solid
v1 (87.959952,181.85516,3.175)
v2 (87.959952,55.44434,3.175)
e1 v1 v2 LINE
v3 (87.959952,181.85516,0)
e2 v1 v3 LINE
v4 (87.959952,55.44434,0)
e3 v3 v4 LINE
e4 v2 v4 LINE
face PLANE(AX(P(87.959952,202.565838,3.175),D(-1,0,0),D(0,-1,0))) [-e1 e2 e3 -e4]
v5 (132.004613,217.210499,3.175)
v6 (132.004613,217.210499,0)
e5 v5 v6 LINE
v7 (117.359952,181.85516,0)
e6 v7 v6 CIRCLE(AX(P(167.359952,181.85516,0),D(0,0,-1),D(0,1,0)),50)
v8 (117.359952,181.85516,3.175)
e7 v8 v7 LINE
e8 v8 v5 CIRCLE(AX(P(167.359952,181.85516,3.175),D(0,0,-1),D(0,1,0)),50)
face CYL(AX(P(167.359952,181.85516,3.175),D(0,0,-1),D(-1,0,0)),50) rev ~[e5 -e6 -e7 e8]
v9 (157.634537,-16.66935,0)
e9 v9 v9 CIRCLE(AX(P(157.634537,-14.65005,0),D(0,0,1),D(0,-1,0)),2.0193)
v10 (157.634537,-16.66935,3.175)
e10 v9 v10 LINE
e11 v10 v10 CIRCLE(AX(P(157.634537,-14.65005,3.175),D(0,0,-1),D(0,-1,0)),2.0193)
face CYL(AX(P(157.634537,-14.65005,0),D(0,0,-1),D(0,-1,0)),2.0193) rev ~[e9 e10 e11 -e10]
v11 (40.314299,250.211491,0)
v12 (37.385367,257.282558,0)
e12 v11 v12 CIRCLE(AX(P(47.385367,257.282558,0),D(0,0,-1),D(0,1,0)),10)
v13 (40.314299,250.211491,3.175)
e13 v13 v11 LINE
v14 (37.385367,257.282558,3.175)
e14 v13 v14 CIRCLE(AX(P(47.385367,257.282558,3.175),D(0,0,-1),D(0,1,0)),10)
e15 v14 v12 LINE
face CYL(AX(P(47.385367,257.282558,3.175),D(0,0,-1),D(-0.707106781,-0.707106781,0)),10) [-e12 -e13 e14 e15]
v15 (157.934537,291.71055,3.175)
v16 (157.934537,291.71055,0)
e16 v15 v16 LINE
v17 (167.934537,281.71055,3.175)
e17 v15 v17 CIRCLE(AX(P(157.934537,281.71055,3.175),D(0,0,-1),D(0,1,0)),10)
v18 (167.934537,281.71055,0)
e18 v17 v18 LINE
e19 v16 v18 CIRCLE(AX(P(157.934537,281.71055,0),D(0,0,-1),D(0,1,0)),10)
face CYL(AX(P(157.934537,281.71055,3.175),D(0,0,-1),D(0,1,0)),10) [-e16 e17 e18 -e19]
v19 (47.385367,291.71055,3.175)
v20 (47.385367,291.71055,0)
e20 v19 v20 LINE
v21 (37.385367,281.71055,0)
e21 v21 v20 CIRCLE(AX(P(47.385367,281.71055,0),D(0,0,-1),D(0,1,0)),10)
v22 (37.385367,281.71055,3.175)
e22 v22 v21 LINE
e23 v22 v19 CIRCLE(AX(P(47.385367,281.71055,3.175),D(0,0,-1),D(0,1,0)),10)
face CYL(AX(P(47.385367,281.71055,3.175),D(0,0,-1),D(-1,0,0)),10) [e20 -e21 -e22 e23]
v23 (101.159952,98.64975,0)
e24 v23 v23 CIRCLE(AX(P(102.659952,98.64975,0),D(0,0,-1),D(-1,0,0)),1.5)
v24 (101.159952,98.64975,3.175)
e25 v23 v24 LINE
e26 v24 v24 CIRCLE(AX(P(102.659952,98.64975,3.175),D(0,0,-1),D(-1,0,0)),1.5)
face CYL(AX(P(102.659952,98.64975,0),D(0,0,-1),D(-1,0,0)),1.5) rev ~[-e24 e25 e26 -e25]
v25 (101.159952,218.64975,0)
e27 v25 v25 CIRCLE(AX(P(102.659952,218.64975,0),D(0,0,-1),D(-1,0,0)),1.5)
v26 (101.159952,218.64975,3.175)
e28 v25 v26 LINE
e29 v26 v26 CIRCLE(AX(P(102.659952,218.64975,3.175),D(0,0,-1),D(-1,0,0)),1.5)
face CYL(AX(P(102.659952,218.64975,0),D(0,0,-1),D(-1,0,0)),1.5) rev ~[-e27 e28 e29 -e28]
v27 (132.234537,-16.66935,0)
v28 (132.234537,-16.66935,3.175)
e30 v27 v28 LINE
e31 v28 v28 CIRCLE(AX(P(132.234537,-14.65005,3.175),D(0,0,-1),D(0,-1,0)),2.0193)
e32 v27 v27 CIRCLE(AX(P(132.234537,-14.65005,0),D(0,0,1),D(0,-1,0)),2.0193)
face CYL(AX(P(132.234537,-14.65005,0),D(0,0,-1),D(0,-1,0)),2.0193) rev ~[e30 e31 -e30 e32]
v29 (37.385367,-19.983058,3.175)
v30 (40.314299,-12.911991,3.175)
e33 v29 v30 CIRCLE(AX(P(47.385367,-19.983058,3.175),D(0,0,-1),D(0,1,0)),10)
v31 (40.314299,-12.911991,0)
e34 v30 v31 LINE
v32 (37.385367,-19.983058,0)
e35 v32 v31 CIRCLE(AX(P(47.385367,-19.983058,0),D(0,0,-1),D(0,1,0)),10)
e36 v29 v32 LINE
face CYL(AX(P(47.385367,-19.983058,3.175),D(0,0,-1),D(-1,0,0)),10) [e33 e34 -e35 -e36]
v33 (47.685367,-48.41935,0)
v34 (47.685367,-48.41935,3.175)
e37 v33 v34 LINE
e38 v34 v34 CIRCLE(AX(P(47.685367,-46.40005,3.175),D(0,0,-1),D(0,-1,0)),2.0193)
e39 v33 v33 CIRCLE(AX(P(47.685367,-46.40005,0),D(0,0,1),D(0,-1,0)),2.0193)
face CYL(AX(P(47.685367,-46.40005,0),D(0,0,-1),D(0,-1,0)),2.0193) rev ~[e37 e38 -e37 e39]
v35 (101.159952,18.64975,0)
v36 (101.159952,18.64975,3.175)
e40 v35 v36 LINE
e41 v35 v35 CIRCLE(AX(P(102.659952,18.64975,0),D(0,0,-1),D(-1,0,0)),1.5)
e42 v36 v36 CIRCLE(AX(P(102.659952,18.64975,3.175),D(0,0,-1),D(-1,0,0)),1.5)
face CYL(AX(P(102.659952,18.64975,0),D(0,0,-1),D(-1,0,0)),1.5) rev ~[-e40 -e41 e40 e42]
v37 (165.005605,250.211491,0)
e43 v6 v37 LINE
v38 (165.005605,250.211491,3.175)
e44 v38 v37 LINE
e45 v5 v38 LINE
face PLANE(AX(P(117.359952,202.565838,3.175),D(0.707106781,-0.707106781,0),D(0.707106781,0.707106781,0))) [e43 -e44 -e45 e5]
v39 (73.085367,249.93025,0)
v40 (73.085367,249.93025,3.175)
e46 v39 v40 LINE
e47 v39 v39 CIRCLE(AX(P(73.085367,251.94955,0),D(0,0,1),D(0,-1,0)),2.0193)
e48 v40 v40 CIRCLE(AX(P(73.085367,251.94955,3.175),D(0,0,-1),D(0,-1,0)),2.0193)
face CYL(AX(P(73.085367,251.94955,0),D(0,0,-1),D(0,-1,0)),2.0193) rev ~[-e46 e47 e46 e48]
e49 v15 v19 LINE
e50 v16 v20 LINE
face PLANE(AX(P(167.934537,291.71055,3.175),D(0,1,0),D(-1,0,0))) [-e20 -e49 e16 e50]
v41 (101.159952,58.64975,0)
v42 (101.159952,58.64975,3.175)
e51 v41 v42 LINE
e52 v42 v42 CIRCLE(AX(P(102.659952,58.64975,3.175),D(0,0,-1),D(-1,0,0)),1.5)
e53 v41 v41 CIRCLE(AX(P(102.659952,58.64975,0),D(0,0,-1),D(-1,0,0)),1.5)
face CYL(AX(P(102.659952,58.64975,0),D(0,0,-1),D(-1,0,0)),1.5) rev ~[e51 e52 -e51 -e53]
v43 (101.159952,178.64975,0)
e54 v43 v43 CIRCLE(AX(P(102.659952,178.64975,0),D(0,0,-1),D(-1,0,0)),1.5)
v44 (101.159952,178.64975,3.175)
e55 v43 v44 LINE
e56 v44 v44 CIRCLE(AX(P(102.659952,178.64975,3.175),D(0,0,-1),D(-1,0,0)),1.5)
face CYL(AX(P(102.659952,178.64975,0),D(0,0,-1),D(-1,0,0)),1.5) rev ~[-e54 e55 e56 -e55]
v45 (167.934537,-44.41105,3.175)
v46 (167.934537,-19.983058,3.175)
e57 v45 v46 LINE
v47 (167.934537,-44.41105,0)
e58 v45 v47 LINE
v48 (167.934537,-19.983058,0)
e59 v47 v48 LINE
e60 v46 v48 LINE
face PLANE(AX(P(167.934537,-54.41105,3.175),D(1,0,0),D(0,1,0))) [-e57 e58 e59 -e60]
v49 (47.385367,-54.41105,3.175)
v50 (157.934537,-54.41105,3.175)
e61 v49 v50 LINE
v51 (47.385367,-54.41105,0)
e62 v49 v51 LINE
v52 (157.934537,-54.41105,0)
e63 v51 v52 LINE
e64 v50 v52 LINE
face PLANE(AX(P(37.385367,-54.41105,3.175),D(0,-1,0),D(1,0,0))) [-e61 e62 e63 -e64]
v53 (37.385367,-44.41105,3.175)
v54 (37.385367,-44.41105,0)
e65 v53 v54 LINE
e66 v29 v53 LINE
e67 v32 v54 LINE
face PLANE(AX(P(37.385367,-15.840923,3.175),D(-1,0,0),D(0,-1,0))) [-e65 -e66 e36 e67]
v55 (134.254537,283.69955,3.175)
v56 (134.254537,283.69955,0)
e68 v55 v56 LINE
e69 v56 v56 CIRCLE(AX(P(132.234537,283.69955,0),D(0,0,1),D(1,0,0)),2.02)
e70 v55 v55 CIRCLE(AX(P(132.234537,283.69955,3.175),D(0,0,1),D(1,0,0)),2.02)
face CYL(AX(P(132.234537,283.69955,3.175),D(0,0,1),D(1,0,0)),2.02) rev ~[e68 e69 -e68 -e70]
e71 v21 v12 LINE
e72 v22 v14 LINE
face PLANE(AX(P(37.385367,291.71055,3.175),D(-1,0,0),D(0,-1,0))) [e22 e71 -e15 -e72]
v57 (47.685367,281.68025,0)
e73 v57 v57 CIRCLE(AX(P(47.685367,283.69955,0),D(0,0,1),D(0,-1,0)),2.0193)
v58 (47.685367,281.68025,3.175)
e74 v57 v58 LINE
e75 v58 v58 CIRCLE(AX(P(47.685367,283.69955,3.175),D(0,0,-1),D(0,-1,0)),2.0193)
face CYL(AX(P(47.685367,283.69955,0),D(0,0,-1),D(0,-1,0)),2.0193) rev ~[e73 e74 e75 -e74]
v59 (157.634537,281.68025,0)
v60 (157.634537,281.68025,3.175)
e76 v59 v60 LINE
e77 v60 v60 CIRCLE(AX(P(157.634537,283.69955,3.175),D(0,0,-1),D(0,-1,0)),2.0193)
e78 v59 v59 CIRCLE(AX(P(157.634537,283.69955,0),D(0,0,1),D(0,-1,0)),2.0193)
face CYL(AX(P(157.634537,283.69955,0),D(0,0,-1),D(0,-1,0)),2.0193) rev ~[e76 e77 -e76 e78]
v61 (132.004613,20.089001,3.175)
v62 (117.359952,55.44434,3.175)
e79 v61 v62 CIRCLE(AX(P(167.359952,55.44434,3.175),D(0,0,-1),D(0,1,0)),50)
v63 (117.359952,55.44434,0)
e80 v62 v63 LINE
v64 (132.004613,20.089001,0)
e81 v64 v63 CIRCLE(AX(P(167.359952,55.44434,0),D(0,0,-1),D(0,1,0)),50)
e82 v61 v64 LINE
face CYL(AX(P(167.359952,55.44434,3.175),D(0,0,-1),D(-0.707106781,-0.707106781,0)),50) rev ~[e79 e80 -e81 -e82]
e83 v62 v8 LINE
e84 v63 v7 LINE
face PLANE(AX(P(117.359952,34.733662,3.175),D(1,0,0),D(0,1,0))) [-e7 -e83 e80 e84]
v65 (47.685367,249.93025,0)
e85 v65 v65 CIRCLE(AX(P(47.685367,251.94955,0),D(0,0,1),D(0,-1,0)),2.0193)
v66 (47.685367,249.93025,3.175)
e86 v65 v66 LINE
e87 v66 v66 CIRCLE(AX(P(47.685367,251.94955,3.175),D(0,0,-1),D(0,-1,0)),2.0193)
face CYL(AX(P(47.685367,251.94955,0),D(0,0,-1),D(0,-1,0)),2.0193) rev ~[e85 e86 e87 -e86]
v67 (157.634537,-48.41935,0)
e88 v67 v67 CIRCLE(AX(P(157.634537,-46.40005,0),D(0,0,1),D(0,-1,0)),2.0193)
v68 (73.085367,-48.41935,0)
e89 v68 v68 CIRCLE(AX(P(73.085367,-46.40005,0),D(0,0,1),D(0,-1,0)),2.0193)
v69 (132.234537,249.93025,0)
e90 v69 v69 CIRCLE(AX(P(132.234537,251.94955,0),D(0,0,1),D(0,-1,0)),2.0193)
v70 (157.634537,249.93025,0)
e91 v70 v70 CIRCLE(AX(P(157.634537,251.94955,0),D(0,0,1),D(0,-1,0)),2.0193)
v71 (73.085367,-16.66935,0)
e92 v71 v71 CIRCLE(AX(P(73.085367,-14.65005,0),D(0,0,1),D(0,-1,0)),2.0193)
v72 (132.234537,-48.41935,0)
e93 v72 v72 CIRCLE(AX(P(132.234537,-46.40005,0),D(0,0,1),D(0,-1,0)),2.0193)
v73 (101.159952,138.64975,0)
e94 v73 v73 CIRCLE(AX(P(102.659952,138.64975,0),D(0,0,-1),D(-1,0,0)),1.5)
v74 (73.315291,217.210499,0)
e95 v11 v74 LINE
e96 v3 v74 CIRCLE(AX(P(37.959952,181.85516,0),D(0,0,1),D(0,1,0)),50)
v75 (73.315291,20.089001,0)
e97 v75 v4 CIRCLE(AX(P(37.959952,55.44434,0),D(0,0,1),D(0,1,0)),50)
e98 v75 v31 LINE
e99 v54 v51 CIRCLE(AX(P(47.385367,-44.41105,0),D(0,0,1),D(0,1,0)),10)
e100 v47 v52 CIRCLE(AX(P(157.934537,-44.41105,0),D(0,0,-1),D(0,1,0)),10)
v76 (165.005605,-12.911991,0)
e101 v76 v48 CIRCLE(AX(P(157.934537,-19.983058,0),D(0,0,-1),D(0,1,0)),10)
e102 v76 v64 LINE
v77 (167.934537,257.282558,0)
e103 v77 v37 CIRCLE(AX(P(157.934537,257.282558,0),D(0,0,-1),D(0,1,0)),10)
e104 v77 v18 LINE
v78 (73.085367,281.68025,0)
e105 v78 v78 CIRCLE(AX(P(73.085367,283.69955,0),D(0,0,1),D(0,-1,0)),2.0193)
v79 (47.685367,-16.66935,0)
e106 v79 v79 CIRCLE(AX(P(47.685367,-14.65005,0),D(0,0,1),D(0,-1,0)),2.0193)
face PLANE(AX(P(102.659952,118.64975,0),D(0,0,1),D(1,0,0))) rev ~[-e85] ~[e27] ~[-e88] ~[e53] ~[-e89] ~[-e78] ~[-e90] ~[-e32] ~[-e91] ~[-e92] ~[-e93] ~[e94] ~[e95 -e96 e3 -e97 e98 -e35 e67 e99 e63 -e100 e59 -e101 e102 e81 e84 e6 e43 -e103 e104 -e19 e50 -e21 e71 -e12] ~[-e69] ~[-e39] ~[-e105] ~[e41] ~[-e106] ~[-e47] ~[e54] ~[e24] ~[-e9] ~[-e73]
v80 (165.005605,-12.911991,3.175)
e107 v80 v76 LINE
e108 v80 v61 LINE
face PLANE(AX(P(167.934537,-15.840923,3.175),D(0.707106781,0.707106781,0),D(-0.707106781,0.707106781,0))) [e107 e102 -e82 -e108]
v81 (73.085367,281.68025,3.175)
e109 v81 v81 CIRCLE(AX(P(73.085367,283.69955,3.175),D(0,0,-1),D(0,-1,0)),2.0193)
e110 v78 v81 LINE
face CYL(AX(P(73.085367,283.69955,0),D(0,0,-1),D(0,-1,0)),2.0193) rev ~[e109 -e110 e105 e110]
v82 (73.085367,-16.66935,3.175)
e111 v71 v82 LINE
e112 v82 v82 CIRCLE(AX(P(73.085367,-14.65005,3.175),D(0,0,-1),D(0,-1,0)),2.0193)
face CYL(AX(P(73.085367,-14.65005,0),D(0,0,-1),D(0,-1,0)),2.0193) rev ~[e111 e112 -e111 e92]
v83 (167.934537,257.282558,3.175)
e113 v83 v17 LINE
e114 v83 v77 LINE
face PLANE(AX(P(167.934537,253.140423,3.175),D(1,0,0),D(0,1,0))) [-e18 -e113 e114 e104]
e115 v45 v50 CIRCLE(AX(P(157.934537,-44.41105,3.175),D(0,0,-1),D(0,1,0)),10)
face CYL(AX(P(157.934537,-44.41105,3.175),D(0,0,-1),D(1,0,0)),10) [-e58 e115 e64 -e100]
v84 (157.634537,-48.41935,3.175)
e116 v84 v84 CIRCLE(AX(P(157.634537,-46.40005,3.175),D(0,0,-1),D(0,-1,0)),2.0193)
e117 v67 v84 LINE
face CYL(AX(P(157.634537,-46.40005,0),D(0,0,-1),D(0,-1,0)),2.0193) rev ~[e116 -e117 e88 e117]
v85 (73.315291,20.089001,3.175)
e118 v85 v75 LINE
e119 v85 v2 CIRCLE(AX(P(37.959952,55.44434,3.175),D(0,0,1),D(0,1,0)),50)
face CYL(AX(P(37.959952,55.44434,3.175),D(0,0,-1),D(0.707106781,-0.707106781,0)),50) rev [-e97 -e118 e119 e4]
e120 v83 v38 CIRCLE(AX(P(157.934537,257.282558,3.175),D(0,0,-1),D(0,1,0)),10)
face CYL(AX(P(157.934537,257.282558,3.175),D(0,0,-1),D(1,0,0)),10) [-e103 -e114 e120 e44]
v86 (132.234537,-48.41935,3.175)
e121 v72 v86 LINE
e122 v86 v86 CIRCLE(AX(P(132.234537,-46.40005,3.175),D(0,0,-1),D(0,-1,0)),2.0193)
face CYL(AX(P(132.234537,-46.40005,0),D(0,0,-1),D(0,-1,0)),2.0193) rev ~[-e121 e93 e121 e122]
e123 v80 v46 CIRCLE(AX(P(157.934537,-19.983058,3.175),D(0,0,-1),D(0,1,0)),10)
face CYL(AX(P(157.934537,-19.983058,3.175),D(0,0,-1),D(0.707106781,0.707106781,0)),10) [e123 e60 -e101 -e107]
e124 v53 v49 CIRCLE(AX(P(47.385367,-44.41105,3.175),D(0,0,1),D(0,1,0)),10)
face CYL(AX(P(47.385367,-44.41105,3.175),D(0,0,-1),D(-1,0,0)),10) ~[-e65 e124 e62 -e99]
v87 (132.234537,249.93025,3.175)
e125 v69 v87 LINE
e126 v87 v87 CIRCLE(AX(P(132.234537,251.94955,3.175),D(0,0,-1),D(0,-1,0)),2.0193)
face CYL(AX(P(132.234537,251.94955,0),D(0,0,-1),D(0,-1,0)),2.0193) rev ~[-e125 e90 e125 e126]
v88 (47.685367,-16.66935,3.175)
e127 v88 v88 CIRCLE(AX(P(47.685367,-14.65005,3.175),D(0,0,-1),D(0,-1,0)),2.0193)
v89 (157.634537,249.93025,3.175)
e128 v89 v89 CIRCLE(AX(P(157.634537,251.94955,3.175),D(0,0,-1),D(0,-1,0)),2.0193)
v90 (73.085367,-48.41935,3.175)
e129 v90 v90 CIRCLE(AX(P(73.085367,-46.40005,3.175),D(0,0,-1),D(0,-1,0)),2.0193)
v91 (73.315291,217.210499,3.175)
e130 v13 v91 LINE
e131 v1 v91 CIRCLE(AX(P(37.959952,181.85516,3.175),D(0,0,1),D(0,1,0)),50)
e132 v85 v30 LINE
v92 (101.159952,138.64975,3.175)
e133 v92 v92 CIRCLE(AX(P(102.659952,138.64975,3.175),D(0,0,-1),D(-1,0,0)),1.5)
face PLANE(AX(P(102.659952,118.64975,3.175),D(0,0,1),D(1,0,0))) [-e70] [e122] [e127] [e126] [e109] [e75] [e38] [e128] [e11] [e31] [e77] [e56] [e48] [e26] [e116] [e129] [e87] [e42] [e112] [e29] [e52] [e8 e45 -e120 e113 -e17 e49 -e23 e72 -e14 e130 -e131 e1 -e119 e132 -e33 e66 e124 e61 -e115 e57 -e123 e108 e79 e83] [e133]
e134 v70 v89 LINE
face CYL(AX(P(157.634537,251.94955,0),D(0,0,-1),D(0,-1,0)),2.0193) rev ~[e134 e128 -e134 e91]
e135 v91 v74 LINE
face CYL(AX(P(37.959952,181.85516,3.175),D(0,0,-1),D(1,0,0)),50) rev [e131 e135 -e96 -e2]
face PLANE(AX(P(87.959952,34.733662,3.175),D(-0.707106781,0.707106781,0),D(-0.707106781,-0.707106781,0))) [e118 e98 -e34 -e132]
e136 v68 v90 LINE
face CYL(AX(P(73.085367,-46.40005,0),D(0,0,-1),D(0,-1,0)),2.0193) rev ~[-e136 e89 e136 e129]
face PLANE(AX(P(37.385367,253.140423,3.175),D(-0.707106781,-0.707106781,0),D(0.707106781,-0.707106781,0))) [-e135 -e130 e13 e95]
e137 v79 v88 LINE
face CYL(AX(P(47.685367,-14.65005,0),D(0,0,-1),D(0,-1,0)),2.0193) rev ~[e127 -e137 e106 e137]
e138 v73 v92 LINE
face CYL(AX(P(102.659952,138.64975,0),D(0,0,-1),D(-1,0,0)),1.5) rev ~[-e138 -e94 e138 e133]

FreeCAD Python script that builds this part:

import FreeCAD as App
import Part
import Sketcher
from FreeCAD import Vector


def edges_at(feature, points):
    """Names of the edges that pass closest to the given points."""
    edges = feature.Shape.Edges
    near = lambda p: min(range(len(edges)), key=lambda i: edges[i].distToShape(Part.Vertex(*p))[0])
    return sorted({f"Edge{near(p) + 1}" for p in points})


def add_polygon(sketch, points):
    """Adds a closed chain of lines whose ends are joined by coincident constraints."""
    first, n = sketch.GeometryCount, len(points)
    for a, b in zip(points, points[1:] + points[:1]):
        sketch.addGeometry(Part.LineSegment(App.Vector(*a, 0), App.Vector(*b, 0)), False)
    for i in range(n):
        sketch.addConstraint(Sketcher.Constraint("Coincident", first + i, 2, first + (i + 1) % n, 1))

doc = App.newDocument("Part")
body = doc.addObject("PartDesign::Body", "Body")

sketch1 = body.newObject("Sketcher::SketchObject", "Sketch")
sketch1.AttachmentSupport = (doc.getObject("XY_Plane"), [""])
sketch1.MapMode = "FlatFace"
add_polygon(sketch1, [(165.9, -16.7), (157.3, -8.1), (115.4, 33.9), (115.4, 203.4), (157.3, 245.3), (165.9, 254), (165.9, 294), (39.4, 289.7), (39.4, 254), (90, 203.4), (90, 33.9), (39.4, -16.7), (39.4, -52.4), (165.9, -56.7)])
sketch1.addGeometry(Part.Circle(Vector(47.7, -46.4, 0), Vector(0, 0, 1), 2), False)
sketch1.addGeometry(Part.Circle(Vector(47.7, -14.7, 0), Vector(0, 0, 1), 2), False)
sketch1.addGeometry(Part.Circle(Vector(73.1, -46.4, 0), Vector(0, 0, 1), 2), False)
sketch1.addGeometry(Part.Circle(Vector(73.1, -14.7, 0), Vector(0, 0, 1), 2), False)
sketch1.addGeometry(Part.Circle(Vector(132.2, -46.4, 0), Vector(0, 0, 1), 2), False)
sketch1.addGeometry(Part.Circle(Vector(132.2, -14.7, 0), Vector(0, 0, 1), 2), False)
sketch1.addGeometry(Part.Circle(Vector(157.6, -46.4, 0), Vector(0, 0, 1), 2), False)
sketch1.addGeometry(Part.Circle(Vector(157.6, -14.7, 0), Vector(0, 0, 1), 2), False)
sketch1.addGeometry(Part.Circle(Vector(47.7, 251.9, 0), Vector(0, 0, 1), 2), False)
sketch1.addGeometry(Part.Circle(Vector(47.7, 283.7, 0), Vector(0, 0, 1), 2), False)
sketch1.addGeometry(Part.Circle(Vector(73.1, 251.9, 0), Vector(0, 0, 1), 2), False)
sketch1.addGeometry(Part.Circle(Vector(73.1, 283.7, 0), Vector(0, 0, 1), 2), False)
sketch1.addGeometry(Part.Circle(Vector(132.2, 251.9, 0), Vector(0, 0, 1), 2), False)
sketch1.addGeometry(Part.Circle(Vector(157.6, 251.9, 0), Vector(0, 0, 1), 2), False)
sketch1.addGeometry(Part.Circle(Vector(157.6, 283.7, 0), Vector(0, 0, 1), 2), False)
sketch1.addConstraint(Sketcher.Constraint("Vertical", 2))
sketch1.addConstraint(Sketcher.Constraint("Vertical", 5))
sketch1.addConstraint(Sketcher.Constraint("Vertical", 7))
sketch1.addConstraint(Sketcher.Constraint("Vertical", 9))
sketch1.addConstraint(Sketcher.Constraint("Vertical", 11))
sketch1.addConstraint(Sketcher.Constraint("Vertical", 13))
sketch1.addConstraint(Sketcher.Constraint("Equal", 14, 15))
sketch1.addConstraint(Sketcher.Constraint("Equal", 15, 16))
sketch1.addConstraint(Sketcher.Constraint("Equal", 16, 17))
sketch1.addConstraint(Sketcher.Constraint("Equal", 17, 18))
sketch1.addConstraint(Sketcher.Constraint("Equal", 18, 19))
sketch1.addConstraint(Sketcher.Constraint("Equal", 19, 20))
sketch1.addConstraint(Sketcher.Constraint("Equal", 20, 21))
sketch1.addConstraint(Sketcher.Constraint("Equal", 21, 22))
sketch1.addConstraint(Sketcher.Constraint("Equal", 22, 23))
sketch1.addConstraint(Sketcher.Constraint("Equal", 23, 24))
sketch1.addConstraint(Sketcher.Constraint("Equal", 24, 25))
sketch1.addConstraint(Sketcher.Constraint("Equal", 25, 26))
sketch1.addConstraint(Sketcher.Constraint("Equal", 26, 27))
sketch1.addConstraint(Sketcher.Constraint("Equal", 27, 28))
sketch1.addConstraint(Sketcher.Constraint("Parallel", 0, 1))
sketch1.addConstraint(Sketcher.Constraint("Perpendicular", 1, 3))
sketch1.addConstraint(Sketcher.Constraint("Parallel", 3, 4))
sketch1.addConstraint(Sketcher.Constraint("Perpendicular", 4, 8))
sketch1.addConstraint(Sketcher.Constraint("Perpendicular", 8, 10))
sketch1.addConstraint(Sketcher.Constraint("Horizontal", 14, 3, 16, 3))
sketch1.addConstraint(Sketcher.Constraint("Horizontal", 15, 3, 17, 3))
sketch1.addConstraint(Sketcher.Constraint("Horizontal", 16, 3, 18, 3))
sketch1.addConstraint(Sketcher.Constraint("Horizontal", 17, 3, 19, 3))
sketch1.addConstraint(Sketcher.Constraint("Horizontal", 18, 3, 20, 3))
sketch1.addConstraint(Sketcher.Constraint("Horizontal", 19, 3, 21, 3))
sketch1.addConstraint(Sketcher.Constraint("Horizontal", 22, 3, 24, 3))
sketch1.addConstraint(Sketcher.Constraint("Horizontal", 23, 3, 25, 3))
sketch1.addConstraint(Sketcher.Constraint("Horizontal", 24, 3, 26, 3))
sketch1.addConstraint(Sketcher.Constraint("Horizontal", 26, 3, 27, 3))
sketch1.addConstraint(Sketcher.Constraint("Horizontal", 25, 3, 28, 3))
sketch1.addConstraint(Sketcher.Constraint("Horizontal", 4, 2, 7, 2))
sketch1.addConstraint(Sketcher.Constraint("Horizontal", 2, 2, 8, 2))
sketch1.addConstraint(Sketcher.Constraint("Horizontal", 1, 2, 9, 2))
sketch1.addConstraint(Sketcher.Constraint("Horizontal", 10, 2, 13, 2))
sketch1.addConstraint(Sketcher.Constraint("Vertical", 14, 3, 15, 3))
sketch1.addConstraint(Sketcher.Constraint("Vertical", 16, 3, 17, 3))
sketch1.addConstraint(Sketcher.Constraint("Vertical", 18, 3, 19, 3))
sketch1.addConstraint(Sketcher.Constraint("Vertical", 20, 3, 21, 3))
sketch1.addConstraint(Sketcher.Constraint("Vertical", 15, 3, 22, 3))
sketch1.addConstraint(Sketcher.Constraint("Vertical", 22, 3, 23, 3))
sketch1.addConstraint(Sketcher.Constraint("Vertical", 17, 3, 24, 3))
sketch1.addConstraint(Sketcher.Constraint("Vertical", 24, 3, 25, 3))
sketch1.addConstraint(Sketcher.Constraint("Vertical", 19, 3, 26, 3))
sketch1.addConstraint(Sketcher.Constraint("Vertical", 21, 3, 27, 3))
sketch1.addConstraint(Sketcher.Constraint("Vertical", 27, 3, 28, 3))
sketch1.addConstraint(Sketcher.Constraint("Vertical", 0, 2, 3, 2))
sketch1.addConstraint(Sketcher.Constraint("Vertical", 7, 2, 10, 2))
sketch1.addConstraint(Sketcher.Constraint("Vertical", 5, 2, 12, 2))
sketch1.addConstraint(Sketcher.Constraint("Equal", 7, 11))
sketch1.addConstraint(Sketcher.Constraint("Equal", 5, 13))
sketch1.addConstraint(Sketcher.Constraint("Diameter", 14, 4.0386))
sketch1.addConstraint(Sketcher.Constraint("DistanceX", 14, 3, 16, 3, 25.4))
sketch1.addConstraint(Sketcher.Constraint("DistanceX", 18, 3, 20, 3, 25.4))
sketch1.addConstraint(Sketcher.Constraint("DistanceY", 21, 3, 0, 2, 6.6))
sketch1.addConstraint(Sketcher.Constraint("DistanceY", 3, 2, 27, 3, 6.6))
sketch1.addConstraint(Sketcher.Constraint("DistanceX", 27, 3, 4, 2, 8.3))
sketch1.addConstraint(Sketcher.Constraint("DistanceX", 6, 2, 23, 3, 8.3))
sketch1.addConstraint(Sketcher.Constraint("DistanceX", 8, 2, 2, 2, 25.4))
sketch1.addConstraint(Sketcher.Constraint("DistanceY", 14, 3, 15, 3, 31.75))
sketch1.addConstraint(Sketcher.Constraint("DistanceY", 22, 3, 23, 3, 31.75))
sketch1.addConstraint(Sketcher.Constraint("DistanceY", 5, 1, 5, 2, 40.0057))
sketch1.addConstraint(Sketcher.Constraint("DistanceY", 7, 2, 7, 1, 35.7417))
sketch1.addConstraint(Sketcher.Constraint("DistanceY", 28, 3, 5, 2, 10.275))
sketch1.addConstraint(Sketcher.Constraint("DistanceY", 2, 1, 2, 2, 169.48903))
sketch1.addConstraint(Sketcher.Constraint("DistanceY", 15, 3, 22, 3, 266.5996))
sketch1.addConstraint(Sketcher.Constraint("DistanceY", 14, 3, -1, 1, 46.40005))
sketch1.addConstraint(Sketcher.Constraint("DistanceX", -1, 1, 14, 3, 47.685367))
pad1 = body.newObject("PartDesign::Pad", "Pad")
pad1.Profile = sketch1
pad1.Length = 3.175

sketch2 = body.newObject("Sketcher::SketchObject", "Sketch001")
sketch2.AttachmentSupport = (doc.getObject("XY_Plane"), [""])
sketch2.MapMode = "FlatFace"
sketch2.AttachmentOffset = App.Placement(Vector(0, 0, 3.175), App.Rotation())
add_polygon(sketch2, [(39.4, -52.4), (165.9, -56.7), (165.9, -52.4)])
add_polygon(sketch2, [(165.9, 289.7), (165.9, 294), (39.4, 289.7)])
sketch2.addConstraint(Sketcher.Constraint("Vertical", 1))
sketch2.addConstraint(Sketcher.Constraint("Horizontal", 2))
sketch2.addConstraint(Sketcher.Constraint("Vertical", 3))
sketch2.addConstraint(Sketcher.Constraint("Horizontal", 5))
sketch2.addConstraint(Sketcher.Constraint("Vertical", 1, 2, 3, 2))
sketch2.addConstraint(Sketcher.Constraint("Vertical", 2, 2, 4, 2))
sketch2.addConstraint(Sketcher.Constraint("Equal", 1, 3))
sketch2.addConstraint(Sketcher.Constraint("DistanceY", 1, 1, 1, 2, 4.264))
sketch2.addConstraint(Sketcher.Constraint("DistanceX", 2, 2, 2, 1, 126.54917))
sketch2.addConstraint(Sketcher.Constraint("DistanceY", 1, 2, 3, 2, 346.3856))
sketch2.addConstraint(Sketcher.Constraint("DistanceY", 0, 2, -1, 1, 56.67505))
sketch2.addConstraint(Sketcher.Constraint("DistanceX", -1, 1, 0, 2, 165.934537))
pocket1 = body.newObject("PartDesign::Pocket", "Pocket")
pocket1.Profile = sketch2
pocket1.Length = 10

sketch3 = body.newObject("Sketcher::SketchObject", "Sketch002")
sketch3.AttachmentSupport = (doc.getObject("XY_Plane"), [""])
sketch3.MapMode = "FlatFace"
sketch3.AttachmentOffset = App.Placement(Vector(0, 0, 3.175), App.Rotation())
add_polygon(sketch3, [(37.4, -15.8), (37.4, -54.4), (167.9, -54.4), (167.9, -15.8), (117.4, 34.7), (117.4, 202.6), (167.9, 253.1), (167.9, 291.7), (37.4, 291.7), (37.4, 253.1), (88, 202.6), (88, 34.7)])
sketch3.addGeometry(Part.Circle(Vector(47.7, -46.4, 0), Vector(0, 0, 1), 2), False)
sketch3.addGeometry(Part.Circle(Vector(47.7, -14.7, 0), Vector(0, 0, 1), 2), False)
sketch3.addGeometry(Part.Circle(Vector(73.1, -46.4, 0), Vector(0, 0, 1), 2), False)
sketch3.addGeometry(Part.Circle(Vector(73.1, -14.7, 0), Vector(0, 0, 1), 2), False)
sketch3.addGeometry(Part.Circle(Vector(132.2, -46.4, 0), Vector(0, 0, 1), 2), False)
sketch3.addGeometry(Part.Circle(Vector(132.2, -14.7, 0), Vector(0, 0, 1), 2), False)
sketch3.addGeometry(Part.Circle(Vector(157.6, -46.4, 0), Vector(0, 0, 1), 2), False)
sketch3.addGeometry(Part.Circle(Vector(157.6, -14.7, 0), Vector(0, 0, 1), 2), False)
sketch3.addGeometry(Part.Circle(Vector(47.7, 251.9, 0), Vector(0, 0, 1), 2), False)
sketch3.addGeometry(Part.Circle(Vector(47.7, 283.7, 0), Vector(0, 0, 1), 2), False)
sketch3.addGeometry(Part.Circle(Vector(73.1, 251.9, 0), Vector(0, 0, 1), 2), False)
sketch3.addGeometry(Part.Circle(Vector(73.1, 283.7, 0), Vector(0, 0, 1), 2), False)
sketch3.addGeometry(Part.Circle(Vector(132.2, 251.9, 0), Vector(0, 0, 1), 2), False)
sketch3.addGeometry(Part.Circle(Vector(157.6, 251.9, 0), Vector(0, 0, 1), 2), False)
sketch3.addGeometry(Part.Circle(Vector(157.6, 283.7, 0), Vector(0, 0, 1), 2), False)
sketch3.addConstraint(Sketcher.Constraint("Vertical", 0))
sketch3.addConstraint(Sketcher.Constraint("Horizontal", 1))
sketch3.addConstraint(Sketcher.Constraint("Vertical", 2))
sketch3.addConstraint(Sketcher.Constraint("Vertical", 4))
sketch3.addConstraint(Sketcher.Constraint("Vertical", 6))
sketch3.addConstraint(Sketcher.Constraint("Horizontal", 7))
sketch3.addConstraint(Sketcher.Constraint("Vertical", 8))
sketch3.addConstraint(Sketcher.Constraint("Vertical", 10))
sketch3.addConstraint(Sketcher.Constraint("Equal", 12, 13))
sketch3.addConstraint(Sketcher.Constraint("Equal", 13, 14))
sketch3.addConstraint(Sketcher.Constraint("Equal", 14, 15))
sketch3.addConstraint(Sketcher.Constraint("Equal", 15, 16))
sketch3.addConstraint(Sketcher.Constraint("Equal", 16, 17))
sketch3.addConstraint(Sketcher.Constraint("Equal", 17, 18))
sketch3.addConstraint(Sketcher.Constraint("Equal", 18, 19))
sketch3.addConstraint(Sketcher.Constraint("Equal", 19, 20))
sketch3.addConstraint(Sketcher.Constraint("Equal", 20, 21))
sketch3.addConstraint(Sketcher.Constraint("Equal", 21, 22))
sketch3.addConstraint(Sketcher.Constraint("Equal", 22, 23))
sketch3.addConstraint(Sketcher.Constraint("Equal", 23, 24))
sketch3.addConstraint(Sketcher.Constraint("Equal", 24, 25))
sketch3.addConstraint(Sketcher.Constraint("Equal", 25, 26))
sketch3.addConstraint(Sketcher.Constraint("Perpendicular", 3, 5))
sketch3.addConstraint(Sketcher.Constraint("Perpendicular", 5, 9))
sketch3.addConstraint(Sketcher.Constraint("Perpendicular", 9, 11))
sketch3.addConstraint(Sketcher.Constraint("Horizontal", 12, 3, 14, 3))
sketch3.addConstraint(Sketcher.Constraint("Horizontal", 13, 3, 15, 3))
sketch3.addConstraint(Sketcher.Constraint("Horizontal", 14, 3, 16, 3))
sketch3.addConstraint(Sketcher.Constraint("Horizontal", 15, 3, 17, 3))
sketch3.addConstraint(Sketcher.Constraint("Horizontal", 16, 3, 18, 3))
sketch3.addConstraint(Sketcher.Constraint("Horizontal", 17, 3, 19, 3))
sketch3.addConstraint(Sketcher.Constraint("Horizontal", 20, 3, 22, 3))
sketch3.addConstraint(Sketcher.Constraint("Horizontal", 21, 3, 23, 3))
sketch3.addConstraint(Sketcher.Constraint("Horizontal", 22, 3, 24, 3))
sketch3.addConstraint(Sketcher.Constraint("Horizontal", 24, 3, 25, 3))
sketch3.addConstraint(Sketcher.Constraint("Horizontal", 23, 3, 26, 3))
sketch3.addConstraint(Sketcher.Constraint("Horizontal", 5, 2, 8, 2))
sketch3.addConstraint(Sketcher.Constraint("Horizontal", 4, 2, 9, 2))
sketch3.addConstraint(Sketcher.Constraint("Horizontal", 3, 2, 10, 2))
sketch3.addConstraint(Sketcher.Constraint("Horizontal", 2, 2, 11, 2))
sketch3.addConstraint(Sketcher.Constraint("Vertical", 12, 3, 13, 3))
sketch3.addConstraint(Sketcher.Constraint("Vertical", 14, 3, 15, 3))
sketch3.addConstraint(Sketcher.Constraint("Vertical", 16, 3, 17, 3))
sketch3.addConstraint(Sketcher.Constraint("Vertical", 18, 3, 19, 3))
sketch3.addConstraint(Sketcher.Constraint("Vertical", 13, 3, 20, 3))
sketch3.addConstraint(Sketcher.Constraint("Vertical", 20, 3, 21, 3))
sketch3.addConstraint(Sketcher.Constraint("Vertical", 15, 3, 22, 3))
sketch3.addConstraint(Sketcher.Constraint("Vertical", 22, 3, 23, 3))
sketch3.addConstraint(Sketcher.Constraint("Vertical", 17, 3, 24, 3))
sketch3.addConstraint(Sketcher.Constraint("Vertical", 19, 3, 25, 3))
sketch3.addConstraint(Sketcher.Constraint("Vertical", 25, 3, 26, 3))
sketch3.addConstraint(Sketcher.Constraint("Vertical", 2, 2, 5, 2))
sketch3.addConstraint(Sketcher.Constraint("Vertical", 0, 2, 7, 2))
sketch3.addConstraint(Sketcher.Constraint("Equal", 2, 6))
sketch3.addConstraint(Sketcher.Constraint("Diameter", 12, 4.0386))
sketch3.addConstraint(Sketcher.Constraint("DistanceX", 12, 3, 14, 3, 25.4))
sketch3.addConstraint(Sketcher.Constraint("DistanceX", 16, 3, 18, 3, 25.4))
sketch3.addConstraint(Sketcher.Constraint("DistanceX", 0, 2, 12, 3, 10.3))
sketch3.addConstraint(Sketcher.Constraint("DistanceX", 18, 3, 1, 2, 10.3))
sketch3.addConstraint(Sketcher.Constraint("DistanceX", 9, 2, 4, 2, 29.4))
sketch3.addConstraint(Sketcher.Constraint("DistanceY", 12, 3, 13, 3, 31.75))
sketch3.addConstraint(Sketcher.Constraint("DistanceY", 20, 3, 21, 3, 31.75))
sketch3.addConstraint(Sketcher.Constraint("DistanceY", 0, 2, 12, 3, 8.011))
sketch3.addConstraint(Sketcher.Constraint("DistanceY", 26, 3, 6, 2, 8.011))
sketch3.addConstraint(Sketcher.Constraint("DistanceX", 1, 1, 1, 2, 130.54917))
sketch3.addConstraint(Sketcher.Constraint("DistanceY", 13, 3, 20, 3, 266.5996))
sketch3.addConstraint(Sketcher.Constraint("DistanceY", 0, 2, 0, 1, 38.570127))
sketch3.addConstraint(Sketcher.Constraint("DistanceY", 12, 3, -1, 1, 46.40005))
sketch3.addConstraint(Sketcher.Constraint("DistanceX", -1, 1, 12, 3, 47.685367))
pad2 = body.newObject("PartDesign::Pad", "Pad001")
pad2.Profile = sketch3
pad2.Length = 3.175
pad2.Reversed = True
doc.recompute()

fillet = body.newObject("PartDesign::Fillet", "Fillet")
fillet.Base = (pad2, edges_at(pad2, [
    (37.385, -54.411, 1.587),
    (167.935, -54.411, 1.587),
    (167.935, -15.841, 1.587),
    (167.935, 253.14, 1.587),
    (167.935, 291.711, 1.587),
    (37.385, 291.711, 1.587),
    (37.385, 253.14, 1.587),
    (37.385, -15.841, 1.587),
]))
fillet.Radius = 10
doc.recompute()

fillet2 = body.newObject("PartDesign::Fillet", "Fillet001")
fillet2.Base = (fillet, edges_at(fillet, [
    (117.36, 34.734, 1.587),
    (117.36, 202.566, 1.587),
    (87.96, 202.566, 1.587),
    (87.96, 34.734, 1.587),
]))
fillet2.Radius = 50

sketch4 = body.newObject("Sketcher::SketchObject", "Sketch003")
sketch4.AttachmentSupport = (doc.getObject("XY_Plane"), [""])
sketch4.MapMode = "FlatFace"
sketch4.AttachmentOffset = App.Placement(Vector(0, 0, 3.175), App.Rotation())
sketch4.addGeometry(Part.Circle(Vector(132.2, 283.7, 0), Vector(0, 0, 1), 2), False)
sketch4.addConstraint(Sketcher.Constraint("Diameter", 0, 4.04))
sketch4.addConstraint(Sketcher.Constraint("DistanceY", -1, 1, 0, 3, 283.69955))
sketch4.addConstraint(Sketcher.Constraint("DistanceX", -1, 1, 0, 3, 132.234537))
pocket2 = body.newObject("PartDesign::Pocket", "Pocket001")
pocket2.Profile = sketch4
pocket2.Length = 10

sketch5 = body.newObject("Sketcher::SketchObject", "Sketch004")
sketch5.AttachmentSupport = (doc.getObject("XY_Plane"), [""])
sketch5.MapMode = "FlatFace"
sketch5.addGeometry(Part.Circle(Vector(102.7, 58.6, 0), Vector(0, 0, 1), 1.5), False)
sketch5.addGeometry(Part.Circle(Vector(102.7, 98.6, 0), Vector(0, 0, 1), 1.5), False)
sketch5.addGeometry(Part.Circle(Vector(102.7, 138.6, 0), Vector(0, 0, 1), 1.5), False)
sketch5.addGeometry(Part.Circle(Vector(102.7, 178.6, 0), Vector(0, 0, 1), 1.5), False)
sketch5.addGeometry(Part.Circle(Vector(102.7, 18.6, 0), Vector(0, 0, 1), 1.5), False)
sketch5.addGeometry(Part.Circle(Vector(102.7, 218.6, 0), Vector(0, 0, 1), 1.5), False)
sketch5.addConstraint(Sketcher.Constraint("Equal", 0, 1))
sketch5.addConstraint(Sketcher.Constraint("Equal", 1, 2))
sketch5.addConstraint(Sketcher.Constraint("Equal", 2, 3))
sketch5.addConstraint(Sketcher.Constraint("Equal", 3, 4))
sketch5.addConstraint(Sketcher.Constraint("Equal", 4, 5))
sketch5.addConstraint(Sketcher.Constraint("Vertical", 0, 3, 1, 3))
sketch5.addConstraint(Sketcher.Constraint("Vertical", 1, 3, 2, 3))
sketch5.addConstraint(Sketcher.Constraint("Vertical", 2, 3, 3, 3))
sketch5.addConstraint(Sketcher.Constraint("Vertical", 3, 3, 4, 3))
sketch5.addConstraint(Sketcher.Constraint("Vertical", 4, 3, 5, 3))
sketch5.addConstraint(Sketcher.Constraint("Diameter", 0, 3.0))
sketch5.addConstraint(Sketcher.Constraint("DistanceY", 0, 3, 1, 3, 40.0))
sketch5.addConstraint(Sketcher.Constraint("DistanceY", 1, 3, 2, 3, 40.0))
sketch5.addConstraint(Sketcher.Constraint("DistanceY", 2, 3, 3, 3, 40.0))
sketch5.addConstraint(Sketcher.Constraint("DistanceY", 4, 3, 0, 3, 40.0))
sketch5.addConstraint(Sketcher.Constraint("DistanceY", 3, 3, 5, 3, 40.0))
sketch5.addConstraint(Sketcher.Constraint("DistanceY", -1, 1, 0, 3, 58.64975))
sketch5.addConstraint(Sketcher.Constraint("DistanceX", -1, 1, 0, 3, 102.659952))
pocket3 = body.newObject("PartDesign::Pocket", "Pocket002")
pocket3.Profile = sketch5
pocket3.Length = 10
pocket3.Reversed = True

doc.recompute()
